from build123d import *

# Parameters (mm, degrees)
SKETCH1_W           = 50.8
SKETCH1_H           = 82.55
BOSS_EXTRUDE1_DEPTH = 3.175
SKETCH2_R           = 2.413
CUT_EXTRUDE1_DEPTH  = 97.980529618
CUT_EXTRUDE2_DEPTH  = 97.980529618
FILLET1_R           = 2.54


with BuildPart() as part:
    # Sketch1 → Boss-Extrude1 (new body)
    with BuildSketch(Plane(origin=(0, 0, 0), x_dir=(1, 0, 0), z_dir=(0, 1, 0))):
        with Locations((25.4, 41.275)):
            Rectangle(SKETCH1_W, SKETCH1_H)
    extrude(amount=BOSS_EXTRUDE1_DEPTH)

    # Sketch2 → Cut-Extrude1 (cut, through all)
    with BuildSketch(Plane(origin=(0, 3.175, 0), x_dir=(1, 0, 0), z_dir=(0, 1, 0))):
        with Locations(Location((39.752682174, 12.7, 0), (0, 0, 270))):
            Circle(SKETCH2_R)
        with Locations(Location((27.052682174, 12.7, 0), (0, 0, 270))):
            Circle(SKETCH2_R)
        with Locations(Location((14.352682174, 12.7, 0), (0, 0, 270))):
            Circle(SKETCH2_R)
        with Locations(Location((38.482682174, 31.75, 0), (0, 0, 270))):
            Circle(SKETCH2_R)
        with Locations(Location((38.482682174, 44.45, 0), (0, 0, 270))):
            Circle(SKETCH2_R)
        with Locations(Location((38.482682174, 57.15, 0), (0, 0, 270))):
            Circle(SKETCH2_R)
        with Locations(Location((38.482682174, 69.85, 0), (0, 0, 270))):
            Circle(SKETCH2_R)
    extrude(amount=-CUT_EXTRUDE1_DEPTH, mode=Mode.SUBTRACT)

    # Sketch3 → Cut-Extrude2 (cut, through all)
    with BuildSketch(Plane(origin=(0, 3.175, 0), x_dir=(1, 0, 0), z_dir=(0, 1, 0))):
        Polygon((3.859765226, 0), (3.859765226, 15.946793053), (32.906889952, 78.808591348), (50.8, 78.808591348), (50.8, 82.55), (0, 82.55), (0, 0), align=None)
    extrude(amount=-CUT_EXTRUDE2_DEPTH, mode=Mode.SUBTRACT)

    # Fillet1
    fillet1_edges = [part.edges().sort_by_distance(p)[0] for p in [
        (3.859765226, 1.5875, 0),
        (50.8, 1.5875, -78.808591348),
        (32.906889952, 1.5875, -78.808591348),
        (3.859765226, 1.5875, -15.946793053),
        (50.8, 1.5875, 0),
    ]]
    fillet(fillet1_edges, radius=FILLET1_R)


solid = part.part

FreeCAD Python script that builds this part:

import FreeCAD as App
import Part
import Sketcher

V = App.Vector
Q = App.Units.Quantity


def edges_at(feature, points):
    """Names of the edges that pass closest to the given points."""
    edges = feature.Shape.Edges
    near = lambda p: min(range(len(edges)), key=lambda i: edges[i].distToShape(Part.Vertex(*p))[0])
    return sorted({f"Edge{near(p) + 1}" for p in points})


def add_polygon(sketch, points):
    """Adds a closed chain of lines whose ends are joined by coincident constraints."""
    first, n = sketch.GeometryCount, len(points)
    for a, b in zip(points, points[1:] + points[:1]):
        sketch.addGeometry(Part.LineSegment(App.Vector(*a, 0), App.Vector(*b, 0)), False)
    for i in range(n):
        sketch.addConstraint(Sketcher.Constraint("Coincident", first + i, 2, first + (i + 1) % n, 1))

doc = App.newDocument("Part")
params = doc.addObject("Spreadsheet::Sheet", "Params")
for row, (alias, value) in enumerate([
    ("sketch1_width", "2 in"),
    ("sketch1_height", "3.25 in"),
    ("pad1_length", "0.125 in"),
    ("sketch2_diameter", "0.19 in"),
    ("sketch3_width", "2 in"),
    ("sketch3_height", "3.25 in"),
    ("fillet_radius", "0.1 in"),
], start=1):
    params.set(f"A{row}", alias)
    params.set(f"B{row}", "=" + value)
    params.setAlias(f"B{row}", alias)

body = doc.addObject("PartDesign::Body", "Body")

# Sketch on XZ plane
sketch1 = body.newObject("Sketcher::SketchObject", "Sketch")
sketch1.AttachmentSupport = (doc.getObject("XZ_Plane"), [""])
sketch1.MapMode = "FlatFace"
add_polygon(sketch1, [(0, -82.55), (0, 0), (50.8, 0), (50.8, -82.55)])  # lines 0-3
sketch1.addConstraint([
    Sketcher.Constraint("Vertical", 0),
    Sketcher.Constraint("Horizontal", 1),
    Sketcher.Constraint("Vertical", 2),
    Sketcher.Constraint("Horizontal", 3),
    Sketcher.Constraint("Coincident", 0, 2, -1, 1),
    Sketcher.Constraint("DistanceX", 1, 1, 1, 2, Q("2 in")),
    Sketcher.Constraint("DistanceY", 0, 1, 0, 2, Q("3.25 in")),
])
sketch1.setExpression("Constraints[9]", "Params.sketch1_width")
sketch1.setExpression("Constraints[10]", "Params.sketch1_height")
pad1 = body.newObject("PartDesign::Pad", "Pad")
pad1.Profile = sketch1
pad1.setExpression("Length", "Params.pad1_length")
pad1.Reversed = True

# Sketch on XZ plane
sketch2 = body.newObject("Sketcher::SketchObject", "Sketch001")
sketch2.AttachmentSupport = (doc.getObject("XZ_Plane"), [""])
sketch2.MapMode = "FlatFace"
sketch2.AttachmentOffset = App.Placement(V(0, 0, -0.125 * 25.4), App.Rotation())
sketch2.addGeometry([
    Part.Circle(V(39.752682, -12.7, 0), V(0, 0, 1), 2.413),  # 0
    Part.Circle(V(27.052682, -12.7, 0), V(0, 0, 1), 2.413),  # 1
    Part.Circle(V(14.352682, -12.7, 0), V(0, 0, 1), 2.413),  # 2
    Part.Circle(V(38.482682, -31.75, 0), V(0, 0, 1), 2.413),  # 3
    Part.Circle(V(38.482682, -44.45, 0), V(0, 0, 1), 2.413),  # 4
    Part.Circle(V(38.482682, -57.15, 0), V(0, 0, 1), 2.413),  # 5
    Part.Circle(V(38.482682, -69.85, 0), V(0, 0, 1), 2.413),  # 6
], False)
sketch2.addConstraint([
    Sketcher.Constraint("Equal", 0, 1),
    Sketcher.Constraint("Equal", 1, 2),
    Sketcher.Constraint("Equal", 2, 3),
    Sketcher.Constraint("Equal", 3, 4),
    Sketcher.Constraint("Equal", 4, 5),
    Sketcher.Constraint("Equal", 5, 6),
    Sketcher.Constraint("Horizontal", 0, 3, 1, 3),
    Sketcher.Constraint("Horizontal", 1, 3, 2, 3),
    Sketcher.Constraint("Vertical", 3, 3, 4, 3),
    Sketcher.Constraint("Vertical", 4, 3, 5, 3),
    Sketcher.Constraint("Vertical", 5, 3, 6, 3),
    Sketcher.Constraint("Diameter", 0, Q("0.19 in")),
    Sketcher.Constraint("DistanceX", 2, 3, 0, 3, Q("1 in")),
    Sketcher.Constraint("DistanceY", 5, 3, 3, 3, Q("1 in")),
    Sketcher.Constraint("DistanceY", 6, 3, 4, 3, Q("1 in")),
    Sketcher.Constraint("DistanceY", 0, 3, -1, 1, Q("0.5 in")),
    Sketcher.Constraint("DistanceX", 1, 3, 0, 3, Q("0.5 in")),
    Sketcher.Constraint("DistanceY", 4, 3, 3, 3, Q("0.5 in")),
    Sketcher.Constraint("DistanceY", 3, 3, -1, 1, Q("1.25 in")),
    Sketcher.Constraint("DistanceX", 3, 3, 0, 3, Q("0.05 in")),
    Sketcher.Constraint("DistanceX", -1, 1, 0, 3, Q("39.752682 mm")),
])
sketch2.setExpression("Constraints[11]", "Params.sketch2_diameter")
pocket1 = body.newObject("PartDesign::Pocket", "Pocket")
pocket1.Profile = sketch2
pocket1.Type = "ThroughAll"
pocket1.Reversed = True

# Sketch on XZ plane
sketch3 = body.newObject("Sketcher::SketchObject", "Sketch002")
sketch3.AttachmentSupport = (doc.getObject("XZ_Plane"), [""])
sketch3.MapMode = "FlatFace"
sketch3.AttachmentOffset = App.Placement(V(0, 0, -0.125 * 25.4), App.Rotation())
add_polygon(sketch3, [(3.859765, 0), (3.859765, -15.946793), (32.90689, -78.808591), (50.8, -78.808591), (50.8, -82.55), (0, -82.55), (0, 0)])  # lines 0-6
sketch3.addConstraint([
    Sketcher.Constraint("Vertical", 0),
    Sketcher.Constraint("Horizontal", 2),
    Sketcher.Constraint("Vertical", 3),
    Sketcher.Constraint("Horizontal", 4),
    Sketcher.Constraint("Vertical", 5),
    Sketcher.Constraint("Horizontal", 6),
    Sketcher.Constraint("Coincident", 5, 2, -1, 1),
    Sketcher.Constraint("DistanceX", 4, 2, 4, 1, Q("2 in")),
    Sketcher.Constraint("DistanceY", 5, 1, 5, 2, Q("3.25 in")),
    Sketcher.Constraint("Distance", 1, Q("69.248402 mm")),
    Sketcher.Constraint("DistanceX", 2, 1, 2, 2, Q("17.89311 mm")),
    Sketcher.Constraint("DistanceY", 3, 2, 3, 1, Q("3.741409 mm")),
    Sketcher.Constraint("DistanceY", 1, 2, 0, 2, Q("62.861798 mm")),
])
sketch3.setExpression("Constraints[14]", "Params.sketch3_width")
sketch3.setExpression("Constraints[15]", "Params.sketch3_height")
pocket2 = body.newObject("PartDesign::Pocket", "Pocket001")
pocket2.Profile = sketch3
pocket2.Type = "ThroughAll"
pocket2.Reversed = True
doc.recompute()

fillet = body.newObject("PartDesign::Fillet", "Fillet")
fillet.Base = (pocket2, edges_at(pocket2, [
    (3.86, 1.587, 0),
    (50.8, 1.587, -78.809),
    (32.907, 1.587, -78.809),
    (3.86, 1.587, -15.947),
    (50.8, 1.587, 0),
]))
fillet.setExpression("Radius", "Params.fillet_radius")

doc.recompute()
